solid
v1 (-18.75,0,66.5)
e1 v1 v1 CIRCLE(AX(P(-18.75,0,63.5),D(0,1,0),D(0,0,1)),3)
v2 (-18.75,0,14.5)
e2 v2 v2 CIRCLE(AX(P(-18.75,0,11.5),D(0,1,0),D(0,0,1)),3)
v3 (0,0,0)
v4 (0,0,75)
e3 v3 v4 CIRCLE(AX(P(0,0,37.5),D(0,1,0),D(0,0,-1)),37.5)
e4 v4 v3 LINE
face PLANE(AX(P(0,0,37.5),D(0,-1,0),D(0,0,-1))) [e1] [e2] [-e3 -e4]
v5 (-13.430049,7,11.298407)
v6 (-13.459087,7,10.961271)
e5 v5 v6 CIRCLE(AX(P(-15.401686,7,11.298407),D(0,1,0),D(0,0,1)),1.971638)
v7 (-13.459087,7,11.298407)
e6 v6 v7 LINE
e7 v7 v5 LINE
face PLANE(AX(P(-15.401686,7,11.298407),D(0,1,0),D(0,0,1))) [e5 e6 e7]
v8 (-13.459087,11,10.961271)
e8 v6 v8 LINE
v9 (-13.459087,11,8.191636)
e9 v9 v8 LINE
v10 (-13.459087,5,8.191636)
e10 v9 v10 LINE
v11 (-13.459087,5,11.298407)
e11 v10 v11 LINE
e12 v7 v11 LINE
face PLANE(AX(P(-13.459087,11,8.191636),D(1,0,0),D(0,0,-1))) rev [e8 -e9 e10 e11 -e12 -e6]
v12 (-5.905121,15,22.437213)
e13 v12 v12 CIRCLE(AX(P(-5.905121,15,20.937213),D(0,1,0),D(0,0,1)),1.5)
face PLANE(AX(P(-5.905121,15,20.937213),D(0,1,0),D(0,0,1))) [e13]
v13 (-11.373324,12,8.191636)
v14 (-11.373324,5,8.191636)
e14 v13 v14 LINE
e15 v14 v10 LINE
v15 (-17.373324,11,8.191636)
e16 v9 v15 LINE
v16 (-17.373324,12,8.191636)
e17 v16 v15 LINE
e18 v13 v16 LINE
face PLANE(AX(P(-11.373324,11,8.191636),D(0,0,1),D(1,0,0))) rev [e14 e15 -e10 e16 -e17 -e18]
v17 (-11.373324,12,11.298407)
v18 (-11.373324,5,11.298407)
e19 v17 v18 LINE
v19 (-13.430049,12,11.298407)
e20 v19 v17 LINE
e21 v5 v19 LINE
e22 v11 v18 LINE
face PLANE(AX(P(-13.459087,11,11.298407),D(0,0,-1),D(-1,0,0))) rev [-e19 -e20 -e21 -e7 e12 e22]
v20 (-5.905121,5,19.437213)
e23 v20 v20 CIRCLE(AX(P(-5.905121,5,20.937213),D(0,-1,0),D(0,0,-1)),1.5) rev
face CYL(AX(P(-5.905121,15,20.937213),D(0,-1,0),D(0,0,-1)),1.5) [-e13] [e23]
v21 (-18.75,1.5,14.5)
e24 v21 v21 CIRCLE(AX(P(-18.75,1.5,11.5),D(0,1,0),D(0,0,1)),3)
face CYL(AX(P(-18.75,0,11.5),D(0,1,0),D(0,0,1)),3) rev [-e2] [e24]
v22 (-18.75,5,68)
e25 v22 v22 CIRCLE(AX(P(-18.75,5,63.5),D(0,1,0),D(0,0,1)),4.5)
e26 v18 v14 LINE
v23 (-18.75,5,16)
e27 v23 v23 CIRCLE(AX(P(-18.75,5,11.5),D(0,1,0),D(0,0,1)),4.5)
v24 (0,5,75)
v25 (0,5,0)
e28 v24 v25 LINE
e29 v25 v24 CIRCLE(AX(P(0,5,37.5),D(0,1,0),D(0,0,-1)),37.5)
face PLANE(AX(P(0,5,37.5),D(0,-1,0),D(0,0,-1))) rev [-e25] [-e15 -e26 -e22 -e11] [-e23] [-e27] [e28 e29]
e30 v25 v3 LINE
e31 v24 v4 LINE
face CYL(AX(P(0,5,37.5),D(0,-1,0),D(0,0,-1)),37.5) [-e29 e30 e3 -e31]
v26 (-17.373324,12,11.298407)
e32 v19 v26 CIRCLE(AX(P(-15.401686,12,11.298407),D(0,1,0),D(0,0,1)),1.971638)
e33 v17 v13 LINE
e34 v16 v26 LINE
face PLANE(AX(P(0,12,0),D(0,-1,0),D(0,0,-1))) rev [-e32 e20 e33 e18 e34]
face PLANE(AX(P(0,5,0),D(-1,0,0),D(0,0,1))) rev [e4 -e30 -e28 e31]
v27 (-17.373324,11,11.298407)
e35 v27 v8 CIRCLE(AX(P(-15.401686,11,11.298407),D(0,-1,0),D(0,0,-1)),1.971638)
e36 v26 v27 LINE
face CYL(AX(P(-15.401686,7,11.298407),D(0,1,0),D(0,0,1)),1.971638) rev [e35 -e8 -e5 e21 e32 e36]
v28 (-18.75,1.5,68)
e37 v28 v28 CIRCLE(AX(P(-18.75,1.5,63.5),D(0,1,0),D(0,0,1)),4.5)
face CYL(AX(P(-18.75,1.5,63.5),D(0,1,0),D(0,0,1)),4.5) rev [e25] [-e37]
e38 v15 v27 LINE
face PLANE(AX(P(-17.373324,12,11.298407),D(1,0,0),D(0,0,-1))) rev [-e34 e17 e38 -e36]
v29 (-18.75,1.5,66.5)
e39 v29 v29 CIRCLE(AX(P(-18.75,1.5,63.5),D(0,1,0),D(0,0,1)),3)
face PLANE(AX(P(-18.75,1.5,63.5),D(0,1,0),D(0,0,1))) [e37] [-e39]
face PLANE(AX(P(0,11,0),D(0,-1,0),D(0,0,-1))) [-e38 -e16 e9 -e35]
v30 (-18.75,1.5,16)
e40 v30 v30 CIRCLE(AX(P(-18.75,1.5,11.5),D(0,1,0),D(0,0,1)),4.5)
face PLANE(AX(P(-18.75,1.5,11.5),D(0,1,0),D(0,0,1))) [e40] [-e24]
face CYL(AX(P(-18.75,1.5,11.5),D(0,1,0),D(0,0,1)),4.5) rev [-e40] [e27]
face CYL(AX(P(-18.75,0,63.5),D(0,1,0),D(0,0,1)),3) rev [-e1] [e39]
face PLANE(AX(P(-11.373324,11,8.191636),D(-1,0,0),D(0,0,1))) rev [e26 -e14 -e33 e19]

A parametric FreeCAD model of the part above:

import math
import FreeCAD as App
import Part
import Sketcher
from FreeCAD import Vector

doc = App.newDocument("Part")
body = doc.addObject("PartDesign::Body", "Body")

sketch1 = body.newObject("Sketcher::SketchObject", "Sketch")
sketch1.AttachmentSupport = (doc.getObject("XZ_Plane"), [""])
sketch1.MapMode = "FlatFace"
sketch1.addGeometry([
    Part.LineSegment(Vector(0, 75, 0), Vector(0, 0, 0)),
    Part.ArcOfCircle(Part.Circle(Vector(0, 37.5, 0), Vector(0, 0, 1), 37.5), math.radians(90), math.radians(270)),
], False)
sketch1.addConstraint([
    Sketcher.Constraint("Coincident", 0, 1, 1, 1),
    Sketcher.Constraint("Coincident", 1, 2, 0, 2),
    Sketcher.Constraint("Vertical", 0),
    Sketcher.Constraint("Coincident", 1, 2, -1, 1),
    Sketcher.Constraint("PointOnObject", 1, 3, -2),
    Sketcher.Constraint("Radius", 1, 37.5),
])
pad1 = body.newObject("PartDesign::Pad", "Pad")
pad1.Profile = sketch1
pad1.Length = 5
pad1.Reversed = True

sketch2 = body.newObject("Sketcher::SketchObject", "Sketch001")
sketch2.AttachmentSupport = (doc.getObject("XZ_Plane"), [""])
sketch2.MapMode = "FlatFace"
sketch2.AttachmentOffset = App.Placement(Vector(0, 0, -5), App.Rotation())
sketch2.addGeometry([
    Part.Circle(Vector(-18.75, 11.5, 0), Vector(0, 0, 1), 4.5),
    Part.Circle(Vector(-18.75, 63.5, 0), Vector(0, 0, 1), 4.5),
], False)
sketch2.addConstraint([
    Sketcher.Constraint("Equal", 0, 1),
    Sketcher.Constraint("Vertical", 0, 3, 1, 3),
    Sketcher.Constraint("Diameter", 0, 9.0),
    Sketcher.Constraint("DistanceY", 0, 3, 1, 3, 52.0),
    Sketcher.Constraint("DistanceY", -1, 1, 0, 3, 11.5),
    Sketcher.Constraint("DistanceX", 0, 3, -1, 1, 18.75),
])
pocket1 = body.newObject("PartDesign::Pocket", "Pocket")
pocket1.Profile = sketch2
pocket1.Length = 3.5
pocket1.Reversed = True

sketch3 = body.newObject("Sketcher::SketchObject", "Sketch002")
sketch3.AttachmentSupport = (doc.getObject("XZ_Plane"), [""])
sketch3.MapMode = "FlatFace"
sketch3.AttachmentOffset = App.Placement(Vector(0, 0, -1.5), App.Rotation())
sketch3.addGeometry([
    Part.Circle(Vector(-18.75, 63.5, 0), Vector(0, 0, 1), 3),
    Part.Circle(Vector(-18.75, 11.5, 0), Vector(0, 0, 1), 3),
], False)
sketch3.addConstraint([
    Sketcher.Constraint("Equal", 0, 1),
    Sketcher.Constraint("Vertical", 0, 3, 1, 3),
    Sketcher.Constraint("Diameter", 0, 6.0),
    Sketcher.Constraint("DistanceY", 1, 3, 0, 3, 52.0),
    Sketcher.Constraint("DistanceY", -1, 1, 0, 3, 63.5),
    Sketcher.Constraint("DistanceX", 0, 3, -1, 1, 18.75),
])
pocket2 = body.newObject("PartDesign::Pocket", "Pocket001")
pocket2.Profile = sketch3
pocket2.Length = 1.5
pocket2.Reversed = True

sketch4 = body.newObject("Sketcher::SketchObject", "Sketch003")
sketch4.AttachmentSupport = (doc.getObject("XZ_Plane"), [""])
sketch4.MapMode = "FlatFace"
sketch4.AttachmentOffset = App.Placement(Vector(0, 0, -5), App.Rotation())
sketch4.addGeometry([
    Part.LineSegment(Vector(-13.459087, 8.191636, 0), Vector(-13.459087, 11.298407, 0)),
    Part.LineSegment(Vector(-13.459087, 11.298407, 0), Vector(-11.373324, 11.298407, 0)),
    Part.LineSegment(Vector(-11.373324, 11.298407, 0), Vector(-11.373324, 8.191636, 0)),
    Part.LineSegment(Vector(-11.373324, 8.191636, 0), Vector(-13.459087, 8.191636, 0)),
], False)
sketch4.addConstraint([
    Sketcher.Constraint("Coincident", 0, 2, 1, 1),
    Sketcher.Constraint("Coincident", 1, 2, 2, 1),
    Sketcher.Constraint("Coincident", 2, 2, 3, 1),
    Sketcher.Constraint("Coincident", 3, 2, 0, 1),
    Sketcher.Constraint("Vertical", 0),
    Sketcher.Constraint("Horizontal", 1),
    Sketcher.Constraint("Vertical", 2),
    Sketcher.Constraint("Horizontal", 3),
    Sketcher.Constraint("DistanceY", 0, 1, 0, 2, 3.106771),
    Sketcher.Constraint("DistanceX", 1, 1, 1, 2, 2.085763),
    Sketcher.Constraint("DistanceX", 0, 2, -1, 1, 13.459087),
    Sketcher.Constraint("DistanceY", -1, 1, 0, 2, 11.298407),
])
pad2 = body.newObject("PartDesign::Pad", "Pad001")
pad2.Profile = sketch4
pad2.Length = 6
pad2.Reversed = True

sketch5 = body.newObject("Sketcher::SketchObject", "Sketch004")
sketch5.AttachmentSupport = (doc.getObject("XZ_Plane"), [""])
sketch5.MapMode = "FlatFace"
sketch5.AttachmentOffset = App.Placement(Vector(0, 0, -11), App.Rotation())
sketch5.addGeometry([
    Part.LineSegment(Vector(-17.373324, 8.191636, 0), Vector(-17.373324, 11.298407, 0)),
    Part.LineSegment(Vector(-17.373324, 11.298407, 0), Vector(-11.373324, 11.298407, 0)),
    Part.LineSegment(Vector(-11.373324, 11.298407, 0), Vector(-11.373324, 8.191636, 0)),
    Part.LineSegment(Vector(-11.373324, 8.191636, 0), Vector(-17.373324, 8.191636, 0)),
], False)
sketch5.addConstraint([
    Sketcher.Constraint("Coincident", 0, 2, 1, 1),
    Sketcher.Constraint("Coincident", 1, 2, 2, 1),
    Sketcher.Constraint("Coincident", 2, 2, 3, 1),
    Sketcher.Constraint("Coincident", 3, 2, 0, 1),
    Sketcher.Constraint("Vertical", 0),
    Sketcher.Constraint("Horizontal", 1),
    Sketcher.Constraint("Vertical", 2),
    Sketcher.Constraint("Horizontal", 3),
    Sketcher.Constraint("DistanceX", 1, 1, 1, 2, 6.0),
    Sketcher.Constraint("DistanceY", 0, 1, 0, 2, 3.106771),
    Sketcher.Constraint("DistanceX", 0, 2, -1, 1, 17.373324),
    Sketcher.Constraint("DistanceY", -1, 1, 0, 2, 11.298407),
])
pad3 = body.newObject("PartDesign::Pad", "Pad002")
pad3.Profile = sketch5
pad3.Length = 1
pad3.Reversed = True

sketch6 = body.newObject("Sketcher::SketchObject", "Sketch005")
sketch6.AttachmentSupport = (doc.getObject("XZ_Plane"), [""])
sketch6.MapMode = "FlatFace"
sketch6.AttachmentOffset = App.Placement(Vector(0, 0, -12), App.Rotation())
sketch6.addGeometry([
    Part.LineSegment(Vector(-17.373324, 11.298407, 0), Vector(-13.430049, 11.298407, 0)),
    Part.ArcOfCircle(Part.Circle(Vector(-15.401686, 11.298407, 0), Vector(0, 0, 1), 1.971638), math.radians(180), math.radians(360)),
], False)
sketch6.addConstraint([
    Sketcher.Constraint("Coincident", 0, 1, 1, 1),
    Sketcher.Constraint("Coincident", 1, 2, 0, 2),
    Sketcher.Constraint("Horizontal", 0),
    Sketcher.Constraint("Horizontal", 1, 3, 0, 1),
    Sketcher.Constraint("Radius", 1, 1.971638),
    Sketcher.Constraint("DistanceX", 1, 2, -1, 1, 13.430049),
    Sketcher.Constraint("DistanceY", -1, 1, 1, 3, 11.298407),
])
pocket3 = body.newObject("PartDesign::Pocket", "Pocket002")
pocket3.Profile = sketch6
pocket3.Length = 5
pocket3.Reversed = True

sketch7 = body.newObject("Sketcher::SketchObject", "Sketch006")
sketch7.AttachmentSupport = (doc.getObject("XZ_Plane"), [""])
sketch7.MapMode = "FlatFace"
sketch7.AttachmentOffset = App.Placement(Vector(0, 0, -5), App.Rotation())
sketch7.addGeometry(Part.Circle(Vector(-5.905121, 20.937213, 0), Vector(0, 0, 1), 1.5), False)
sketch7.addConstraint([
    Sketcher.Constraint("Diameter", 0, 3.0),
    Sketcher.Constraint("DistanceX", 0, 3, -1, 1, 5.905121),
    Sketcher.Constraint("DistanceY", -1, 1, 0, 3, 20.937213),
])
pad4 = body.newObject("PartDesign::Pad", "Pad003")
pad4.Profile = sketch7
pad4.Length = 10
pad4.Reversed = True

doc.recompute()
